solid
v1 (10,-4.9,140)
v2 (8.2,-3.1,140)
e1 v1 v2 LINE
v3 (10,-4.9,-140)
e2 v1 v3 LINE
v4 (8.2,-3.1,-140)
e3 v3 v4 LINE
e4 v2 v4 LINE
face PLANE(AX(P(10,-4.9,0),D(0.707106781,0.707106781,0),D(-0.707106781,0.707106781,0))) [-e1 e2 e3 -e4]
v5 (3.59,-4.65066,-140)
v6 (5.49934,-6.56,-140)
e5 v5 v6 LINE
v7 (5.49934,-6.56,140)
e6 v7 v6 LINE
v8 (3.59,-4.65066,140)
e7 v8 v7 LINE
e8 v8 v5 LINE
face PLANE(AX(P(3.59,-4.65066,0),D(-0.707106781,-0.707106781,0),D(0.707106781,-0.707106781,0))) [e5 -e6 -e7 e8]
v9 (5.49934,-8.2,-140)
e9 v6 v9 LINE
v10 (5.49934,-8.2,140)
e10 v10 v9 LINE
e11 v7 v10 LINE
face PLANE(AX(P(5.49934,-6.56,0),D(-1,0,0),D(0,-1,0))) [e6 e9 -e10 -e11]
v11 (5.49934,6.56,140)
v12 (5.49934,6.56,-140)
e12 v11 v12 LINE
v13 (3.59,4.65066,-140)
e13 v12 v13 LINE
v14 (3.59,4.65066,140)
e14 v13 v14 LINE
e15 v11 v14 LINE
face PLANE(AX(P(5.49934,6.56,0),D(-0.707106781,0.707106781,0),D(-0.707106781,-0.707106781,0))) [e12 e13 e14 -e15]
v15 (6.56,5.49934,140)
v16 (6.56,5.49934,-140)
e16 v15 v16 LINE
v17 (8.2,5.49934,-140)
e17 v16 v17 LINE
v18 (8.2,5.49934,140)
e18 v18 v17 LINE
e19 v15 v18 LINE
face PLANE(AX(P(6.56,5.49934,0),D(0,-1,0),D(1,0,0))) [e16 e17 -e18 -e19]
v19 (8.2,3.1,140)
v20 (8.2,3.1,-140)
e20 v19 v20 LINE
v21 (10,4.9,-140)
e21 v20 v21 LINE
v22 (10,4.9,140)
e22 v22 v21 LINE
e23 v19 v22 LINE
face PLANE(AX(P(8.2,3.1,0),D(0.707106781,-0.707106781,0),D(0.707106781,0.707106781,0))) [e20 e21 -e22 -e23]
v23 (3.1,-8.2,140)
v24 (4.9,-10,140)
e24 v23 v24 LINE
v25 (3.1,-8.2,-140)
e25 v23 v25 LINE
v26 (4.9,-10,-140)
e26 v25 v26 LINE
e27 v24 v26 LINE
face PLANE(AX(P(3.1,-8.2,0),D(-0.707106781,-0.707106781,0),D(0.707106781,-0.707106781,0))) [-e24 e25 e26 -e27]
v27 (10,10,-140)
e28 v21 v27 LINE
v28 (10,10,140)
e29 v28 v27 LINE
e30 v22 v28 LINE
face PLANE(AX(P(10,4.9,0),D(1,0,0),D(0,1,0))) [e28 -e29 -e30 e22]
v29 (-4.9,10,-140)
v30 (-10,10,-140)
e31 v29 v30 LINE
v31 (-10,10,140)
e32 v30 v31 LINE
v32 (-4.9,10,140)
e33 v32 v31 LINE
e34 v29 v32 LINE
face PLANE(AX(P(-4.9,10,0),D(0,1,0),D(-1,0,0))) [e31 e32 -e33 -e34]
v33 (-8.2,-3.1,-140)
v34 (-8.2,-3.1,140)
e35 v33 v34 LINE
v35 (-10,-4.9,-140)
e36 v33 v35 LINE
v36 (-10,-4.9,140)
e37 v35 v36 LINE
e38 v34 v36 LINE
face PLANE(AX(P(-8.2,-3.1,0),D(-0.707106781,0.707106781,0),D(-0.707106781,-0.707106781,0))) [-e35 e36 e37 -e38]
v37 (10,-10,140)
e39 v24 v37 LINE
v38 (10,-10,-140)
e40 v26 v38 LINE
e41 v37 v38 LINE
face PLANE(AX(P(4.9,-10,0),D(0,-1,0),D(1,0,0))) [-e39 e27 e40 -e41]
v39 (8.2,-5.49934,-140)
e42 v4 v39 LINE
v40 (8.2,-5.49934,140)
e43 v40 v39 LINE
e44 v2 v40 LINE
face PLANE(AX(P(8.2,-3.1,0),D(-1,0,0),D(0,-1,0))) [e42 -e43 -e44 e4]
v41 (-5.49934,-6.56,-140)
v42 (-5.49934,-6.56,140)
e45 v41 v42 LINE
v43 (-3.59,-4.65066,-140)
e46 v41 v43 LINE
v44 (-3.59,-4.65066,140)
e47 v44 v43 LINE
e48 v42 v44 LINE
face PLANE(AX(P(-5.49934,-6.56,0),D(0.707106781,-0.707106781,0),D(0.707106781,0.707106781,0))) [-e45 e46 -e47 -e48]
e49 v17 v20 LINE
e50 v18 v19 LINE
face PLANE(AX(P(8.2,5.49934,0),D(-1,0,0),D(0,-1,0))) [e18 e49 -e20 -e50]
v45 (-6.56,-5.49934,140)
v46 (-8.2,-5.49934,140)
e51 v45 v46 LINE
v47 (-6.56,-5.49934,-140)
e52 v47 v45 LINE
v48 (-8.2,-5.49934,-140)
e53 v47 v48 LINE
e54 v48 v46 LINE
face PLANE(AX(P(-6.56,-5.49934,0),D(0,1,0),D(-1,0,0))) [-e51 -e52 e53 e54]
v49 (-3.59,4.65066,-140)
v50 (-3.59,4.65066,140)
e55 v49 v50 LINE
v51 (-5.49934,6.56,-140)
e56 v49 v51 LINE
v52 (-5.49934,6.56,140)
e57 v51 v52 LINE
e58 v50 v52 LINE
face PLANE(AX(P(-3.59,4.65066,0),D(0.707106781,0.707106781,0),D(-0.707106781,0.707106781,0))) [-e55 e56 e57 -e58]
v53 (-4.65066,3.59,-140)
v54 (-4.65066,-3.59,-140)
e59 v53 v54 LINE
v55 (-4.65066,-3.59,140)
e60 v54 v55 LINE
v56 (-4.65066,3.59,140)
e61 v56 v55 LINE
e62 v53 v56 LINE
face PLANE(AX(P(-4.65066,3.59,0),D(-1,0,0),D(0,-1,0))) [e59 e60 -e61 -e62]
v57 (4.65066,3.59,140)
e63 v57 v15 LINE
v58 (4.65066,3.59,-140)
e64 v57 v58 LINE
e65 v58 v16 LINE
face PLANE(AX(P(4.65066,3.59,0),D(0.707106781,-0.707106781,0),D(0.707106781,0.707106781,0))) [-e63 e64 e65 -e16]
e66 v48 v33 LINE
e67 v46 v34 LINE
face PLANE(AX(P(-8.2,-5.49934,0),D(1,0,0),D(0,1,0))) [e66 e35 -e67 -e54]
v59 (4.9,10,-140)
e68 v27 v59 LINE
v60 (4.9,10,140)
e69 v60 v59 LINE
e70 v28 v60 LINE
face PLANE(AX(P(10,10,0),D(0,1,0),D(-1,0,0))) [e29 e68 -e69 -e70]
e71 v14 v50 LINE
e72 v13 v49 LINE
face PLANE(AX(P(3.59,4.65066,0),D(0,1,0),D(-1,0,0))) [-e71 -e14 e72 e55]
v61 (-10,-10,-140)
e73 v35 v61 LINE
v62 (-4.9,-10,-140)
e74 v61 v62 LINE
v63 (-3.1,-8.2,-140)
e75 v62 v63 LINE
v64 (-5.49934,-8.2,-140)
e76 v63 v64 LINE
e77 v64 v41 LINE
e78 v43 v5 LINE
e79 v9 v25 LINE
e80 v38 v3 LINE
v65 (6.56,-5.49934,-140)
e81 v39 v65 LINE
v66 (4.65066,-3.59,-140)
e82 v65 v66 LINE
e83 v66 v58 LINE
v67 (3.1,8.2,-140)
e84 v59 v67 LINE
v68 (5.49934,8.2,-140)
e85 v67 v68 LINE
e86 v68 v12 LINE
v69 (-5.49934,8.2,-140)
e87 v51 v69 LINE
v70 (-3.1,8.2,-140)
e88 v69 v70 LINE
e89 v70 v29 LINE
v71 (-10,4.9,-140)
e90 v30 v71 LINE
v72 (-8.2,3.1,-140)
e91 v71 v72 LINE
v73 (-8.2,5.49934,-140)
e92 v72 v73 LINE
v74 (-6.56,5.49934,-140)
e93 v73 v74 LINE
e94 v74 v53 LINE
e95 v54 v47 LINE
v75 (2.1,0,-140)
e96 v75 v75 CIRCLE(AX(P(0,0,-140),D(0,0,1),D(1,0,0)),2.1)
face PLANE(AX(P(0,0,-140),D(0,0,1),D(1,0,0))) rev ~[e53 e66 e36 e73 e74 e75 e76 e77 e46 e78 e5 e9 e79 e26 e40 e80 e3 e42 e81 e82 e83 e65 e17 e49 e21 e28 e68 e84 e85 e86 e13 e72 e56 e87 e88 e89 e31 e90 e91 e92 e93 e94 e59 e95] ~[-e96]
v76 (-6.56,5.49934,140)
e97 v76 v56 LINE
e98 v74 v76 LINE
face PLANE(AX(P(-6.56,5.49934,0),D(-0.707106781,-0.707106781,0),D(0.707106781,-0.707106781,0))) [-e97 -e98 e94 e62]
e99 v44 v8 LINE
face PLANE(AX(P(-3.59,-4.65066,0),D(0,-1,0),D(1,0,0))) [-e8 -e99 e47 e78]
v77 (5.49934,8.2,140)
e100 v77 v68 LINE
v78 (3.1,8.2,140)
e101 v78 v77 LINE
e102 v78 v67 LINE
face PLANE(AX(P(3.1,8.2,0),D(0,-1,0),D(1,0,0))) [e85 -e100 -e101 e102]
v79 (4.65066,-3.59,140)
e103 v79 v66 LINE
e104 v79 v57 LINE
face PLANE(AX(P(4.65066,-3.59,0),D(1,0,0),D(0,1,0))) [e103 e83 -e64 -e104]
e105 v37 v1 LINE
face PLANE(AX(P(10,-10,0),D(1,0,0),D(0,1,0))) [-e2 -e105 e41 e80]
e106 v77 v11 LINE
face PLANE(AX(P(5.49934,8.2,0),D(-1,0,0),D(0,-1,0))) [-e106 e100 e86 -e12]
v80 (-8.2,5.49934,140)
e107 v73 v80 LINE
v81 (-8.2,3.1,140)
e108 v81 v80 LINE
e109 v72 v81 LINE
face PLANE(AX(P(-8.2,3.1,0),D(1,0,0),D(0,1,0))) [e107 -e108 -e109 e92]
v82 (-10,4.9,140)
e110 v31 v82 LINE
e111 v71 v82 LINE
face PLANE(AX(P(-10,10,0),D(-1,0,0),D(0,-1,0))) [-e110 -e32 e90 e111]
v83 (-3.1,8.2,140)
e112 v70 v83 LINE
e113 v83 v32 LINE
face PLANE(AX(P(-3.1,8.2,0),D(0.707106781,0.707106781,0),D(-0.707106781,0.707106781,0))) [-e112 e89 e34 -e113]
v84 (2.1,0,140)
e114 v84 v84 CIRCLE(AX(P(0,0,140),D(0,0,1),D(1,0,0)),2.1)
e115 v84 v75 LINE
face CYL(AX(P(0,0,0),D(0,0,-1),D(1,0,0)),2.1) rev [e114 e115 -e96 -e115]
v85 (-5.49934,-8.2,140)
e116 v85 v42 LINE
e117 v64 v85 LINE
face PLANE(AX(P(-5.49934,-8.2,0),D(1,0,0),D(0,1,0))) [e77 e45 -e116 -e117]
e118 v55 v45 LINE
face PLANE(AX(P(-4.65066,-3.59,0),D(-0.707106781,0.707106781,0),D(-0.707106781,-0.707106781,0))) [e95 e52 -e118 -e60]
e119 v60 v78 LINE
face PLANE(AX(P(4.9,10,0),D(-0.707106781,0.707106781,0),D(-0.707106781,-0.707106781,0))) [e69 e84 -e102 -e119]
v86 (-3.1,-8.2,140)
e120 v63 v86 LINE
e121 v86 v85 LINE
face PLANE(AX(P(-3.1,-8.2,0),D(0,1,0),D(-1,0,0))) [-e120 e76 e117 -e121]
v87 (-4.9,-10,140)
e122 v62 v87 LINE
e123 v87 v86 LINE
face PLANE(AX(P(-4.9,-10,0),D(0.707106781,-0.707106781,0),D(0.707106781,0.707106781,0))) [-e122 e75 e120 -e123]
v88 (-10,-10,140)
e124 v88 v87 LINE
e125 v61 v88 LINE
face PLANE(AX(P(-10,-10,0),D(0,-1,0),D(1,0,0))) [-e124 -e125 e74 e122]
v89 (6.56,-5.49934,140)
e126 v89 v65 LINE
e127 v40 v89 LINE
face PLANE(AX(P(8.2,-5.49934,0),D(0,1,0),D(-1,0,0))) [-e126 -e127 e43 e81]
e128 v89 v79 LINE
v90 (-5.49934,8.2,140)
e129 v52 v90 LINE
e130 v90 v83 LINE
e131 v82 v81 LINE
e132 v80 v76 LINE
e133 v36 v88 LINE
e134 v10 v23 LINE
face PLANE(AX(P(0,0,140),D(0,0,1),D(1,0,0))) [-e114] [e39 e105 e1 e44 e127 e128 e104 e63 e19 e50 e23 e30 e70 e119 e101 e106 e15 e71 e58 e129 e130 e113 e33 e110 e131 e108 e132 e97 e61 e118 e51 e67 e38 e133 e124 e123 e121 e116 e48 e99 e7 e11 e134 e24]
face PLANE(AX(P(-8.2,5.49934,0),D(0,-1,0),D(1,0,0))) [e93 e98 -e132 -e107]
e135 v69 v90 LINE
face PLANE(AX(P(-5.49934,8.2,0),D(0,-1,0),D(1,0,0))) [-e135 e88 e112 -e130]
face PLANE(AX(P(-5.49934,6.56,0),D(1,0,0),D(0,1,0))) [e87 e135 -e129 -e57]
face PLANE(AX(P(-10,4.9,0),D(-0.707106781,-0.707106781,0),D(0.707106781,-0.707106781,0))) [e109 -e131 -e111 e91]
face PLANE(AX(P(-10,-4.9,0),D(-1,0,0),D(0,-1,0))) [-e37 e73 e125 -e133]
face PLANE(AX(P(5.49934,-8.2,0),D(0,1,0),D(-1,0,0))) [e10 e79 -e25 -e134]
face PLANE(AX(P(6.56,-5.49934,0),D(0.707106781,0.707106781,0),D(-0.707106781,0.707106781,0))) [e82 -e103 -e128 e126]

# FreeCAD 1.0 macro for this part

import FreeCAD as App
import Part
import Sketcher
from FreeCAD import Vector

doc = App.newDocument("Part")
body = doc.addObject("PartDesign::Body", "Body")

sketch1 = body.newObject("Sketcher::SketchObject", "Sketch")
sketch1.AttachmentSupport = (doc.getObject("XY_Plane"), [""])
sketch1.MapMode = "FlatFace"
sketch1.addGeometry([
    Part.LineSegment(Vector(5.49934, 6.56, 0), Vector(3.59, 4.65066, 0)),
    Part.LineSegment(Vector(3.59, 4.65066, 0), Vector(-3.59, 4.65066, 0)),
    Part.LineSegment(Vector(-3.59, 4.65066, 0), Vector(-5.49934, 6.56, 0)),
    Part.LineSegment(Vector(-5.49934, 6.56, 0), Vector(-5.49934, 8.2, 0)),
    Part.LineSegment(Vector(-5.49934, 8.2, 0), Vector(-3.1, 8.2, 0)),
    Part.LineSegment(Vector(-3.1, 8.2, 0), Vector(-4.9, 10, 0)),
    Part.LineSegment(Vector(-4.9, 10, 0), Vector(-10, 10, 0)),
    Part.LineSegment(Vector(-10, 10, 0), Vector(-10, 4.9, 0)),
    Part.LineSegment(Vector(-10, 4.9, 0), Vector(-8.2, 3.1, 0)),
    Part.LineSegment(Vector(-8.2, 3.1, 0), Vector(-8.2, 5.49934, 0)),
    Part.LineSegment(Vector(-8.2, 5.49934, 0), Vector(-6.56, 5.49934, 0)),
    Part.LineSegment(Vector(-6.56, 5.49934, 0), Vector(-4.65066, 3.59, 0)),
    Part.LineSegment(Vector(-4.65066, 3.59, 0), Vector(-4.65066, -3.59, 0)),
    Part.LineSegment(Vector(-4.65066, -3.59, 0), Vector(-6.56, -5.49934, 0)),
    Part.LineSegment(Vector(-6.56, -5.49934, 0), Vector(-8.2, -5.49934, 0)),
    Part.LineSegment(Vector(-8.2, -5.49934, 0), Vector(-8.2, -3.1, 0)),
    Part.LineSegment(Vector(-8.2, -3.1, 0), Vector(-10, -4.9, 0)),
    Part.LineSegment(Vector(-10, -4.9, 0), Vector(-10, -10, 0)),
    Part.LineSegment(Vector(-10, -10, 0), Vector(-4.9, -10, 0)),
    Part.LineSegment(Vector(-4.9, -10, 0), Vector(-3.1, -8.2, 0)),
    Part.LineSegment(Vector(-3.1, -8.2, 0), Vector(-5.49934, -8.2, 0)),
    Part.LineSegment(Vector(-5.49934, -8.2, 0), Vector(-5.49934, -6.56, 0)),
    Part.LineSegment(Vector(-5.49934, -6.56, 0), Vector(-3.59, -4.65066, 0)),
    Part.LineSegment(Vector(-3.59, -4.65066, 0), Vector(3.59, -4.65066, 0)),
    Part.LineSegment(Vector(3.59, -4.65066, 0), Vector(5.49934, -6.56, 0)),
    Part.LineSegment(Vector(5.49934, -6.56, 0), Vector(5.49934, -8.2, 0)),
    Part.LineSegment(Vector(5.49934, -8.2, 0), Vector(3.1, -8.2, 0)),
    Part.LineSegment(Vector(3.1, -8.2, 0), Vector(4.9, -10, 0)),
    Part.LineSegment(Vector(4.9, -10, 0), Vector(10, -10, 0)),
    Part.LineSegment(Vector(10, -10, 0), Vector(10, -4.9, 0)),
    Part.LineSegment(Vector(10, -4.9, 0), Vector(8.2, -3.1, 0)),
    Part.LineSegment(Vector(8.2, -3.1, 0), Vector(8.2, -5.49934, 0)),
    Part.LineSegment(Vector(8.2, -5.49934, 0), Vector(6.56, -5.49934, 0)),
    Part.LineSegment(Vector(6.56, -5.49934, 0), Vector(4.65066, -3.59, 0)),
    Part.LineSegment(Vector(4.65066, -3.59, 0), Vector(4.65066, 3.59, 0)),
    Part.LineSegment(Vector(4.65066, 3.59, 0), Vector(6.56, 5.49934, 0)),
    Part.LineSegment(Vector(6.56, 5.49934, 0), Vector(8.2, 5.49934, 0)),
    Part.LineSegment(Vector(8.2, 5.49934, 0), Vector(8.2, 3.1, 0)),
    Part.LineSegment(Vector(8.2, 3.1, 0), Vector(10, 4.9, 0)),
    Part.LineSegment(Vector(10, 4.9, 0), Vector(10, 10, 0)),
    Part.LineSegment(Vector(10, 10, 0), Vector(4.9, 10, 0)),
    Part.LineSegment(Vector(4.9, 10, 0), Vector(3.1, 8.2, 0)),
    Part.LineSegment(Vector(3.1, 8.2, 0), Vector(5.49934, 8.2, 0)),
    Part.LineSegment(Vector(5.49934, 8.2, 0), Vector(5.49934, 6.56, 0)),
    Part.Circle(Vector(0, 0, 0), Vector(0, 0, 1), 2.1),
], False)
sketch1.addConstraint([
    Sketcher.Constraint("Coincident", 0, 2, 1, 1),
    Sketcher.Constraint("Coincident", 1, 2, 2, 1),
    Sketcher.Constraint("Coincident", 2, 2, 3, 1),
    Sketcher.Constraint("Coincident", 3, 2, 4, 1),
    Sketcher.Constraint("Coincident", 4, 2, 5, 1),
    Sketcher.Constraint("Coincident", 5, 2, 6, 1),
    Sketcher.Constraint("Coincident", 6, 2, 7, 1),
    Sketcher.Constraint("Coincident", 7, 2, 8, 1),
    Sketcher.Constraint("Coincident", 8, 2, 9, 1),
    Sketcher.Constraint("Coincident", 9, 2, 10, 1),
    Sketcher.Constraint("Coincident", 10, 2, 11, 1),
    Sketcher.Constraint("Coincident", 11, 2, 12, 1),
    Sketcher.Constraint("Coincident", 12, 2, 13, 1),
    Sketcher.Constraint("Coincident", 13, 2, 14, 1),
    Sketcher.Constraint("Coincident", 14, 2, 15, 1),
    Sketcher.Constraint("Coincident", 15, 2, 16, 1),
    Sketcher.Constraint("Coincident", 16, 2, 17, 1),
    Sketcher.Constraint("Coincident", 17, 2, 18, 1),
    Sketcher.Constraint("Coincident", 18, 2, 19, 1),
    Sketcher.Constraint("Coincident", 19, 2, 20, 1),
    Sketcher.Constraint("Coincident", 20, 2, 21, 1),
    Sketcher.Constraint("Coincident", 21, 2, 22, 1),
    Sketcher.Constraint("Coincident", 22, 2, 23, 1),
    Sketcher.Constraint("Coincident", 23, 2, 24, 1),
    Sketcher.Constraint("Coincident", 24, 2, 25, 1),
    Sketcher.Constraint("Coincident", 25, 2, 26, 1),
    Sketcher.Constraint("Coincident", 26, 2, 27, 1),
    Sketcher.Constraint("Coincident", 27, 2, 28, 1),
    Sketcher.Constraint("Coincident", 28, 2, 29, 1),
    Sketcher.Constraint("Coincident", 29, 2, 30, 1),
    Sketcher.Constraint("Coincident", 30, 2, 31, 1),
    Sketcher.Constraint("Coincident", 31, 2, 32, 1),
    Sketcher.Constraint("Coincident", 32, 2, 33, 1),
    Sketcher.Constraint("Coincident", 33, 2, 34, 1),
    Sketcher.Constraint("Coincident", 34, 2, 35, 1),
    Sketcher.Constraint("Coincident", 35, 2, 36, 1),
    Sketcher.Constraint("Coincident", 36, 2, 37, 1),
    Sketcher.Constraint("Coincident", 37, 2, 38, 1),
    Sketcher.Constraint("Coincident", 38, 2, 39, 1),
    Sketcher.Constraint("Coincident", 39, 2, 40, 1),
    Sketcher.Constraint("Coincident", 40, 2, 41, 1),
    Sketcher.Constraint("Coincident", 41, 2, 42, 1),
    Sketcher.Constraint("Coincident", 42, 2, 43, 1),
    Sketcher.Constraint("Coincident", 43, 2, 0, 1),
    Sketcher.Constraint("Horizontal", 1),
    Sketcher.Constraint("Vertical", 3),
    Sketcher.Constraint("Horizontal", 4),
    Sketcher.Constraint("Horizontal", 6),
    Sketcher.Constraint("Vertical", 7),
    Sketcher.Constraint("Vertical", 9),
    Sketcher.Constraint("Horizontal", 10),
    Sketcher.Constraint("Vertical", 12),
    Sketcher.Constraint("Horizontal", 14),
    Sketcher.Constraint("Vertical", 15),
    Sketcher.Constraint("Vertical", 17),
    Sketcher.Constraint("Horizontal", 18),
    Sketcher.Constraint("Horizontal", 20),
    Sketcher.Constraint("Vertical", 21),
    Sketcher.Constraint("Horizontal", 23),
    Sketcher.Constraint("Vertical", 25),
    Sketcher.Constraint("Horizontal", 26),
    Sketcher.Constraint("Horizontal", 28),
    Sketcher.Constraint("Vertical", 29),
    Sketcher.Constraint("Vertical", 31),
    Sketcher.Constraint("Horizontal", 32),
    Sketcher.Constraint("Vertical", 34),
    Sketcher.Constraint("Horizontal", 36),
    Sketcher.Constraint("Vertical", 37),
    Sketcher.Constraint("Vertical", 39),
    Sketcher.Constraint("Horizontal", 40),
    Sketcher.Constraint("Horizontal", 42),
    Sketcher.Constraint("Vertical", 43),
    Sketcher.Constraint("Coincident", 44, 3, -1, 1),
    Sketcher.Constraint("Symmetric", 0, 2, 22, 2, -1, 1),
    Sketcher.Constraint("Symmetric", 2, 2, 24, 2, -1, 1),
    Sketcher.Constraint("Symmetric", 4, 2, 26, 2, -1, 1),
    Sketcher.Constraint("Symmetric", 5, 2, 27, 2, -1, 1),
    Sketcher.Constraint("Symmetric", 7, 2, 29, 2, -1, 1),
    Sketcher.Constraint("Symmetric", 8, 2, 30, 2, -1, 1),
    Sketcher.Constraint("Symmetric", 10, 2, 32, 2, -1, 1),
    Sketcher.Constraint("Symmetric", 11, 2, 33, 2, -1, 1),
    Sketcher.Constraint("Symmetric", 13, 2, 35, 2, -1, 1),
    Sketcher.Constraint("Symmetric", 15, 2, 37, 2, -1, 1),
    Sketcher.Constraint("Symmetric", 16, 2, 38, 2, -1, 1),
    Sketcher.Constraint("Symmetric", 18, 2, 40, 2, -1, 1),
    Sketcher.Constraint("Symmetric", 19, 2, 41, 2, -1, 1),
    Sketcher.Constraint("Symmetric", 21, 2, 43, 2, -1, 1),
    Sketcher.Constraint("Symmetric", 21, 2, 24, 2, -2),
    Sketcher.Constraint("Symmetric", 19, 2, 26, 2, -2),
    Sketcher.Constraint("Symmetric", 18, 2, 27, 2, -2),
    Sketcher.Constraint("Symmetric", 16, 2, 29, 2, -2),
    Sketcher.Constraint("Symmetric", 15, 2, 30, 2, -2),
    Sketcher.Constraint("Symmetric", 13, 2, 32, 2, -2),
    Sketcher.Constraint("Perpendicular", 0, 2),
    Sketcher.Constraint("Parallel", 2, 5),
    Sketcher.Constraint("Parallel", 5, 8),
    Sketcher.Constraint("Parallel", 8, 11),
    Sketcher.Constraint("Perpendicular", 11, 13),
    Sketcher.Constraint("Parallel", 13, 16),
    Sketcher.Constraint("Perpendicular", 22, 24),
    Sketcher.Constraint("Perpendicular", 33, 35),
    Sketcher.Constraint("Equal", 36, 3),
    Sketcher.Constraint("Equal", 40, 7),
    Sketcher.Constraint("Equal", 42, 9),
    Sketcher.Constraint("Equal", 23, 12),
    Sketcher.Constraint("Equal", 5, 8),
    Sketcher.Constraint("Equal", 2, 11),
    Sketcher.Constraint("Diameter", 44, 4.2),
    Sketcher.Constraint("DistanceX", 6, 2, 6, 1, 5.1),
    Sketcher.Constraint("DistanceY", -1, 1, 5, 2, 10.0),
    Sketcher.Constraint("DistanceY", 16, 2, 8, 2, 8.0),
    Sketcher.Constraint("DistanceX", 1, 2, 1, 1, 7.18),
    Sketcher.Constraint("DistanceX", 10, 1, 10, 2, 1.64),
    Sketcher.Constraint("DistanceX", 4, 1, 4, 2, 2.39934),
])
pad1 = body.newObject("PartDesign::Pad", "Pad")
pad1.Profile = sketch1
pad1.Length = 280
pad1.Midplane = True

doc.recompute()
